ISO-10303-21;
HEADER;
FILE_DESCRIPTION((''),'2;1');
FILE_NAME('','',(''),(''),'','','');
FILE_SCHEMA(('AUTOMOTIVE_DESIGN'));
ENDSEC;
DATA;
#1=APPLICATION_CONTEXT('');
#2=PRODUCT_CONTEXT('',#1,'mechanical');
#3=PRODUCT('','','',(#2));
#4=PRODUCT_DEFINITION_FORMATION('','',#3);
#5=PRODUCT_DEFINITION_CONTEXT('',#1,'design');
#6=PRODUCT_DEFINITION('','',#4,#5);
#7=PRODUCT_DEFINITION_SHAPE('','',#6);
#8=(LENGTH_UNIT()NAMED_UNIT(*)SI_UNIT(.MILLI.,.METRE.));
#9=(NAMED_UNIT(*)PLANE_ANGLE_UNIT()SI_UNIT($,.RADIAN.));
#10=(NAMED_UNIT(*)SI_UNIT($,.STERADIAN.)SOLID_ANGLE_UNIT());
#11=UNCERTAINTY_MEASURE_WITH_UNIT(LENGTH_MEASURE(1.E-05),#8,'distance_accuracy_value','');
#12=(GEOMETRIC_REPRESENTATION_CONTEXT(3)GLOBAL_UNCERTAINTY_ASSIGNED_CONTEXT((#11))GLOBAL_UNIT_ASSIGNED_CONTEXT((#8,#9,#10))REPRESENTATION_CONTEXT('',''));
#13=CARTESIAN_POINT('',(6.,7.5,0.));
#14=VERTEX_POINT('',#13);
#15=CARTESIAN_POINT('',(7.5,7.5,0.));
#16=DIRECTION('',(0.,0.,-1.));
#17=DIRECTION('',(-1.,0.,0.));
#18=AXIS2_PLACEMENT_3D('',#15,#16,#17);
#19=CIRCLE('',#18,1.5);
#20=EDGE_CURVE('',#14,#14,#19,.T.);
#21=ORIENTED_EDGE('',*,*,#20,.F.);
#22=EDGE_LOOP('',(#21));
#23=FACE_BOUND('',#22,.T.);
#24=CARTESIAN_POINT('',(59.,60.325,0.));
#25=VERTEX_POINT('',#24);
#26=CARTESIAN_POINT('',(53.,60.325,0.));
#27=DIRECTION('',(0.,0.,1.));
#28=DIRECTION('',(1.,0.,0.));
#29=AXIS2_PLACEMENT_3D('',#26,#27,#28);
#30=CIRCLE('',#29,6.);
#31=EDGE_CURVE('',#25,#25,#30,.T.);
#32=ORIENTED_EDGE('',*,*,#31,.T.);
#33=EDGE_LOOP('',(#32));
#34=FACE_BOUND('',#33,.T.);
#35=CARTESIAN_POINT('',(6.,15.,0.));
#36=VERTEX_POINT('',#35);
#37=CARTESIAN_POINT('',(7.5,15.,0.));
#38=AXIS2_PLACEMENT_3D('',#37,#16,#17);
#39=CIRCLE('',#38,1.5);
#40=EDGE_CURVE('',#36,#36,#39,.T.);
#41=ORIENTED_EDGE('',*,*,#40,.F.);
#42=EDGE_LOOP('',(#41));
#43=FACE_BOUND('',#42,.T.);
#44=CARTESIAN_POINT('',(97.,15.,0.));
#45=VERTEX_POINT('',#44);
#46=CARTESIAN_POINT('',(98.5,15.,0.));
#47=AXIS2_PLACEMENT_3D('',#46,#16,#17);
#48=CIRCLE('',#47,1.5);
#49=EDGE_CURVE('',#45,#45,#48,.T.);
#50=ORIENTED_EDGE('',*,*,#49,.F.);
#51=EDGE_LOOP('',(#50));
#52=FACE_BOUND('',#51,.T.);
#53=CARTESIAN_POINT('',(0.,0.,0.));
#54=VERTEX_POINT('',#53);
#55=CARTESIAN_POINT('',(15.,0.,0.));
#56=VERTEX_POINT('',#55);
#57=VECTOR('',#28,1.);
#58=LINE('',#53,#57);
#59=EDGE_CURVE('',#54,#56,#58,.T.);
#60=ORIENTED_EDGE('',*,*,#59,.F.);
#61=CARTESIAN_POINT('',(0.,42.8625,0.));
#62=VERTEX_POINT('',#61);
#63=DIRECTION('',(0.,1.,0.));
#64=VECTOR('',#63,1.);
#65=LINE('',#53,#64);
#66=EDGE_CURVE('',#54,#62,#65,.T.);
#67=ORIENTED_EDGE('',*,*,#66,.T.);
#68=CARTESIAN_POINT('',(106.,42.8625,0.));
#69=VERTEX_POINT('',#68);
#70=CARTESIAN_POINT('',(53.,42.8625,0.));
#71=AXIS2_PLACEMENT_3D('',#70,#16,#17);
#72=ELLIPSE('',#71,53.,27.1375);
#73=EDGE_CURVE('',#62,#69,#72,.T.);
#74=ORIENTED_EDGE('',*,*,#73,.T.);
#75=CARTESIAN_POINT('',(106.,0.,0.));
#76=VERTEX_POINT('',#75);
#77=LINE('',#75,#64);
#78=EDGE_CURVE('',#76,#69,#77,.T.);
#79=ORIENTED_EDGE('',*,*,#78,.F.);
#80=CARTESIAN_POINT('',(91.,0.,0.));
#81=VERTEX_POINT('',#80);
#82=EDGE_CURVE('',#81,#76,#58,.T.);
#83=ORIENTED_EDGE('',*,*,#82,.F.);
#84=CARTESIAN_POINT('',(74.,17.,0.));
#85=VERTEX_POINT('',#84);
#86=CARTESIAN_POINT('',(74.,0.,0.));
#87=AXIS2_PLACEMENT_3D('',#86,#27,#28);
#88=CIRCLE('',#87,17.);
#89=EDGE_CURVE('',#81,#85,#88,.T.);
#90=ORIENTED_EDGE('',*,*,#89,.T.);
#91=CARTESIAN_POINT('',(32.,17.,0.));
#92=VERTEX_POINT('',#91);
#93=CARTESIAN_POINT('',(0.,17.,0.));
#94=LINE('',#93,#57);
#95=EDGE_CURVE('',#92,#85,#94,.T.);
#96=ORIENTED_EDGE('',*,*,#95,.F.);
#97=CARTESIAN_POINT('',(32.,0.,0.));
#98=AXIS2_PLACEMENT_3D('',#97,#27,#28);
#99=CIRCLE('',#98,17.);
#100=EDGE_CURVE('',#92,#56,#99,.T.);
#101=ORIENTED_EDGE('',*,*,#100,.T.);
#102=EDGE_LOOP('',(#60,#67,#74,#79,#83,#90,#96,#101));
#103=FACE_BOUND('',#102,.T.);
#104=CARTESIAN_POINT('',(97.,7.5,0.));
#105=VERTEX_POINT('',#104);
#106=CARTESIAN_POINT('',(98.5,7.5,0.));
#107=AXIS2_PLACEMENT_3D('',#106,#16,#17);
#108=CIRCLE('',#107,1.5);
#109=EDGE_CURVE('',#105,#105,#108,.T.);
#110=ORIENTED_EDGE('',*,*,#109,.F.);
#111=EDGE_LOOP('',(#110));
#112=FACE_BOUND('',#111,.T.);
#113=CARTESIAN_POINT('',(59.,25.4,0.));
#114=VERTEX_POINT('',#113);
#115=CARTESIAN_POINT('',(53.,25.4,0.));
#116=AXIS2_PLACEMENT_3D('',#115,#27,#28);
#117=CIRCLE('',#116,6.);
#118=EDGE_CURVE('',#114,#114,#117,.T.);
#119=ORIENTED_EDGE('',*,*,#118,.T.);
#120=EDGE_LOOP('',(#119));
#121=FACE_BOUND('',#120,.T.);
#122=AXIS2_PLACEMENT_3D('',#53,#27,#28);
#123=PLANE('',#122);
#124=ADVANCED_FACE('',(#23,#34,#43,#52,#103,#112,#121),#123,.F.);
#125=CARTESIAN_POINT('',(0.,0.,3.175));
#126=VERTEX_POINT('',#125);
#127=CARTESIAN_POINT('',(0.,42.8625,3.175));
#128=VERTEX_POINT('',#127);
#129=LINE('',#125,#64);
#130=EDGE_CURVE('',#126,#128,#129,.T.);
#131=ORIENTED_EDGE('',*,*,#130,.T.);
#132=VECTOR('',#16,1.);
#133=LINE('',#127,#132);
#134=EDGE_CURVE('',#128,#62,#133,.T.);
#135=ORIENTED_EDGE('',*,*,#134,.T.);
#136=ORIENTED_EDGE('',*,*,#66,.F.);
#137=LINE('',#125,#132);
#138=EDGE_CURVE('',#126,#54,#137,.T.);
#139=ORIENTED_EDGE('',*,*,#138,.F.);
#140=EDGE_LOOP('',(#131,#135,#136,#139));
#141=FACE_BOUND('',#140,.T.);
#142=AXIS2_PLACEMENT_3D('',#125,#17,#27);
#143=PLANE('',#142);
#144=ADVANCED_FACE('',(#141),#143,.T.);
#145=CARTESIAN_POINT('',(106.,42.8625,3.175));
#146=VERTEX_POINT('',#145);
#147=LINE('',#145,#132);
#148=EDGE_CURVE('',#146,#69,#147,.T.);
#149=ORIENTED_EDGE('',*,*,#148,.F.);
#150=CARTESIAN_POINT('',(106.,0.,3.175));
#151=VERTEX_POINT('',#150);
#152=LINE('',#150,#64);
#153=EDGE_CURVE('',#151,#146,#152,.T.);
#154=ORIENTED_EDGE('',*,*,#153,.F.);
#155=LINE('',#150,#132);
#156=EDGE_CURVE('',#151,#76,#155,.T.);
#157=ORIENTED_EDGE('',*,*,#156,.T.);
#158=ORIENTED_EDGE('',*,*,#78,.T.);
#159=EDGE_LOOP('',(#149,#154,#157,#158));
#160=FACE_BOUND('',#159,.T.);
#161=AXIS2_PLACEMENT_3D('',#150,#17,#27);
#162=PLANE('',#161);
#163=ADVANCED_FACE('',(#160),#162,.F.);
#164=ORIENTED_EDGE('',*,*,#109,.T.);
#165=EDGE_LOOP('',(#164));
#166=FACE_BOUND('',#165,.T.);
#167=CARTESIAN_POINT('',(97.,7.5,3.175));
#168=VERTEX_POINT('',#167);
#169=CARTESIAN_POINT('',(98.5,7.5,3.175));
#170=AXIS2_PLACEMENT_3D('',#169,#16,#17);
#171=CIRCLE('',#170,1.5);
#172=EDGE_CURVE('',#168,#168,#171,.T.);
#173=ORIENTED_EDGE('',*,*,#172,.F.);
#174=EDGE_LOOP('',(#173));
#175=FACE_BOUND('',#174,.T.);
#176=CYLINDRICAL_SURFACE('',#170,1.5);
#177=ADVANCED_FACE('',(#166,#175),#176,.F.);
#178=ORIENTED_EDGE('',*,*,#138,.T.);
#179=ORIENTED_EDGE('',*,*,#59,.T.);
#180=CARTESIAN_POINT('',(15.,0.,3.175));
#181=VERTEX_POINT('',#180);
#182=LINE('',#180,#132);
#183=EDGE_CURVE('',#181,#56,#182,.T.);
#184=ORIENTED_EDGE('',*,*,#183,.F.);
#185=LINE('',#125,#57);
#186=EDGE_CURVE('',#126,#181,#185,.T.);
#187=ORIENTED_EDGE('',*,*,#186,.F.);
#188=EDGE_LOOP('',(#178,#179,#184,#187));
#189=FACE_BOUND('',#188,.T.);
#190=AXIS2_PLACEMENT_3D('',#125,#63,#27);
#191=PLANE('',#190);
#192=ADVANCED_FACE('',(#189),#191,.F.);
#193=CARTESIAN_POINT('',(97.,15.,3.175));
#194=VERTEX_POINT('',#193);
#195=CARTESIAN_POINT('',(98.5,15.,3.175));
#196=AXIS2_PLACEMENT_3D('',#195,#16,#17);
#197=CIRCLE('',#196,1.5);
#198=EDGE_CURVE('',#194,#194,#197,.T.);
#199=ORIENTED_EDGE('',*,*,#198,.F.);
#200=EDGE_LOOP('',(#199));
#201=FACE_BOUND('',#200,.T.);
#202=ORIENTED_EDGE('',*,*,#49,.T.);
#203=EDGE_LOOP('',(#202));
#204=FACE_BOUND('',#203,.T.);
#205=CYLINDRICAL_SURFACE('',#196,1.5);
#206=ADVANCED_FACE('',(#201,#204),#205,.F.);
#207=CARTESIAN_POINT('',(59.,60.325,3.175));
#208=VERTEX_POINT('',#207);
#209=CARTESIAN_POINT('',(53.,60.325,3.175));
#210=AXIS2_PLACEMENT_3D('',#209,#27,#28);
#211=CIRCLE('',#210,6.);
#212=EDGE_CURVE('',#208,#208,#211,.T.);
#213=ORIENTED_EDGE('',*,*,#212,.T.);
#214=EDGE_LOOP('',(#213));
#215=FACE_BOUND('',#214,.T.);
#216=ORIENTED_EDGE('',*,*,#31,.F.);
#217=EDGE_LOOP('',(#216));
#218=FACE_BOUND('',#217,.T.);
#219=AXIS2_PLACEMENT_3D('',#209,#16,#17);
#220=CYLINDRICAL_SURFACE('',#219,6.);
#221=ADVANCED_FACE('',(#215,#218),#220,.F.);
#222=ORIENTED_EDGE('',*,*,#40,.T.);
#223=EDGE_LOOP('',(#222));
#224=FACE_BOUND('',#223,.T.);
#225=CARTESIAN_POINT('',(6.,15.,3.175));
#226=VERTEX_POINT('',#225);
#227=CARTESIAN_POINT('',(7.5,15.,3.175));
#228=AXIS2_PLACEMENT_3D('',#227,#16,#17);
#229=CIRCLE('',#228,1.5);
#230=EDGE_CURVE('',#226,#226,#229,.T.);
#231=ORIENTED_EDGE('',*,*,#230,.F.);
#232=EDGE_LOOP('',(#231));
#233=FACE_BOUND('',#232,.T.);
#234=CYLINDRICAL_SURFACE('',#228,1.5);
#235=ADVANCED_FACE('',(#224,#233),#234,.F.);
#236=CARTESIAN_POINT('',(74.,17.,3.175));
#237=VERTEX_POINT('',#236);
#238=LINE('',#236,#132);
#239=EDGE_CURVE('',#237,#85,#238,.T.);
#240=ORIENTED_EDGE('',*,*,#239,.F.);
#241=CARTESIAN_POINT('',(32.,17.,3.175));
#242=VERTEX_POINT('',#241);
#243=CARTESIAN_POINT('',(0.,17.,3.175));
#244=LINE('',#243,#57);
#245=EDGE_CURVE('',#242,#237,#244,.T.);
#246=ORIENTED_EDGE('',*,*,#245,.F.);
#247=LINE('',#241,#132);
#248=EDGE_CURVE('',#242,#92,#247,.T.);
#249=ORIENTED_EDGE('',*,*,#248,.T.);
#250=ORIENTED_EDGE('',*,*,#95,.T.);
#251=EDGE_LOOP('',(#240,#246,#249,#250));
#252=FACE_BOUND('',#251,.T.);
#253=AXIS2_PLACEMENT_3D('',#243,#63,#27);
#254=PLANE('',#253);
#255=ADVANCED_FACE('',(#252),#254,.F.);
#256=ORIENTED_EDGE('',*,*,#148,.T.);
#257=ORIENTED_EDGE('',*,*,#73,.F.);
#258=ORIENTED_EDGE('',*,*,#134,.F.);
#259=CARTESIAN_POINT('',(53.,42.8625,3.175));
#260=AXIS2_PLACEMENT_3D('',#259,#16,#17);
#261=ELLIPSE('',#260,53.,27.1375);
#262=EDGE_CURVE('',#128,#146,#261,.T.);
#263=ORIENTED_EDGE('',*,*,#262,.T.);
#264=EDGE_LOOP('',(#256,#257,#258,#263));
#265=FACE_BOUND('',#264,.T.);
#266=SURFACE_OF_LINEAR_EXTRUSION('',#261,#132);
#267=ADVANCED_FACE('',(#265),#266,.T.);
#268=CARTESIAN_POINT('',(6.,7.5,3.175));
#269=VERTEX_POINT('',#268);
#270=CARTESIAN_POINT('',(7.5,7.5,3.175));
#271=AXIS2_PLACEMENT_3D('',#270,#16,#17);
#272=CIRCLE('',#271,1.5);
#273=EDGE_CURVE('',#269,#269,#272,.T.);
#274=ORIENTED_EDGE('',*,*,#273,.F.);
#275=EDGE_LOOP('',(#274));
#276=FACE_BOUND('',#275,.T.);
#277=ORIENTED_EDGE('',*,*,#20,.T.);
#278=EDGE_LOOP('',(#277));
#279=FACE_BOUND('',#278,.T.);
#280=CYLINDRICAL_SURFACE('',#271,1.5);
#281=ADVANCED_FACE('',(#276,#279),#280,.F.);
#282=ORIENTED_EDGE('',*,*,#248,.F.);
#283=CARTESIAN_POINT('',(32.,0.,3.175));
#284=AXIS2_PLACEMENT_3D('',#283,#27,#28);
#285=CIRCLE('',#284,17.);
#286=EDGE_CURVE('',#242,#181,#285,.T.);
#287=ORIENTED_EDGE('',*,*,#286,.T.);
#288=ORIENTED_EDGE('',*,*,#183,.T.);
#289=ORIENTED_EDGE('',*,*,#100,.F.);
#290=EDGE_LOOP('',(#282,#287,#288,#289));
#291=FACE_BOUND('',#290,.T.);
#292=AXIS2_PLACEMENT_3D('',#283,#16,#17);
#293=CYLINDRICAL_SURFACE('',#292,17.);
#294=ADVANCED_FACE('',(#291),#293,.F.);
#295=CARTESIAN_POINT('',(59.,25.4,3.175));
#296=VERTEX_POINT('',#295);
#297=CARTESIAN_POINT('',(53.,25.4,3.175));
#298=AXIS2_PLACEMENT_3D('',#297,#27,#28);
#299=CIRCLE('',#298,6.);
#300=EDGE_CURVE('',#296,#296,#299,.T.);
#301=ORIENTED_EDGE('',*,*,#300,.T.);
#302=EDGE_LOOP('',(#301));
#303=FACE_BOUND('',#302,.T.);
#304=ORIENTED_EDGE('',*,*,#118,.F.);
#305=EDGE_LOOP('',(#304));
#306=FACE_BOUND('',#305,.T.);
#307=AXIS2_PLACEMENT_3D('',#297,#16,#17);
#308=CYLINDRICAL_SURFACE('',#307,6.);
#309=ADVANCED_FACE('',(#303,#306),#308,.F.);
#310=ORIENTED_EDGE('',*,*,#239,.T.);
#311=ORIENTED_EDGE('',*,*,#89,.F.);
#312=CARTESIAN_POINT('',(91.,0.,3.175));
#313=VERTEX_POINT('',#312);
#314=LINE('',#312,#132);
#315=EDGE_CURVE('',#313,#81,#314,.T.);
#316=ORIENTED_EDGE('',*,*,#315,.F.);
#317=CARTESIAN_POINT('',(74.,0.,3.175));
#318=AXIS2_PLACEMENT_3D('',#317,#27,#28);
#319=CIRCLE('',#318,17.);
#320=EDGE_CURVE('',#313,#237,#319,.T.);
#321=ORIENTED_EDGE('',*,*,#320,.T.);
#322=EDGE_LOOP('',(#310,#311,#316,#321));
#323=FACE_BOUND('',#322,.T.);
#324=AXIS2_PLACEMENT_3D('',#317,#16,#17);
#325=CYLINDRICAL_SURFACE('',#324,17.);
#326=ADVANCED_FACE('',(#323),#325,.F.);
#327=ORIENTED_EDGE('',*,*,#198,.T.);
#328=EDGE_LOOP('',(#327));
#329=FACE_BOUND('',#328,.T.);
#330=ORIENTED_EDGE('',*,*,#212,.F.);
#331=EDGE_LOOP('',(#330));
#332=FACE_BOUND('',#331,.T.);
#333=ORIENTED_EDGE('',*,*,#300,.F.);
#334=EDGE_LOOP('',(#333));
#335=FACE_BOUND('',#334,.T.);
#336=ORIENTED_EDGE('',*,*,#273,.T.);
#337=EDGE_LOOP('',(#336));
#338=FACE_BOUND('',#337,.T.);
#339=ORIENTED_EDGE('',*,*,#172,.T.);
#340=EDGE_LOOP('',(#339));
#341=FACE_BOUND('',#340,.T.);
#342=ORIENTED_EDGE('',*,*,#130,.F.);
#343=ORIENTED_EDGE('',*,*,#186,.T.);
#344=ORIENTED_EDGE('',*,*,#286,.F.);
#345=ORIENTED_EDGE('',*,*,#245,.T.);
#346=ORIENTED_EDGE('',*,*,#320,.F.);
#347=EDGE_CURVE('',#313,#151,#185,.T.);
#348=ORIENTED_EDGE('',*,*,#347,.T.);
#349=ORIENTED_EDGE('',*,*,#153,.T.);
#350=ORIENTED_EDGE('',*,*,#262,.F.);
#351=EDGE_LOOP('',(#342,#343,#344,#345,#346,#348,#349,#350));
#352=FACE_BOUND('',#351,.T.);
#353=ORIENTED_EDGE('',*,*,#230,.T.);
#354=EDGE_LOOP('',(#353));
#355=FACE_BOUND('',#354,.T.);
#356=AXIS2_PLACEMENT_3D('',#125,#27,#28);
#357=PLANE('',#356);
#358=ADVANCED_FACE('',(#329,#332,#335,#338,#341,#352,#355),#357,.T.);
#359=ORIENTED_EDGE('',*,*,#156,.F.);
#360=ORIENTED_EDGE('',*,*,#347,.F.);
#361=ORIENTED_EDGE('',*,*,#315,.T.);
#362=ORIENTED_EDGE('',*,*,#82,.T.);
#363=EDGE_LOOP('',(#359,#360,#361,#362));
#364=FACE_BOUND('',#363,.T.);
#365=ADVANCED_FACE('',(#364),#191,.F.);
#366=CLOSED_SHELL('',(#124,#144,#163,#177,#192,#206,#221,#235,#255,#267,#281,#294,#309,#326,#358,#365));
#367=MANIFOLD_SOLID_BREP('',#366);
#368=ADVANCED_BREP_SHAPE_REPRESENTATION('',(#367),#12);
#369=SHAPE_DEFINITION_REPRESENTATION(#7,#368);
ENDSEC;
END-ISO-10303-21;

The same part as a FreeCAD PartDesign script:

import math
import FreeCAD as App
import Part
import Sketcher

doc = App.newDocument("Part")
body = doc.addObject("PartDesign::Body", "Body")

# Sketch on XY plane
sketch1 = body.newObject("Sketcher::SketchObject", "Sketch")
sketch1.AttachmentSupport = (doc.getObject("XY_Plane"), [""])
sketch1.MapMode = "FlatFace"
sketch1.addGeometry([
    Part.ArcOfCircle(Part.Circle(App.Vector(32, 0, 0), App.Vector(0, 0, 1), 17), math.radians(90), math.radians(180)),  # 0
    Part.LineSegment(App.Vector(32, 17, 0), App.Vector(74, 17, 0)),  # 1
    Part.ArcOfCircle(Part.Circle(App.Vector(74, 0, 0), App.Vector(0, 0, 1), 17), math.radians(0), math.radians(90)),  # 2
    Part.LineSegment(App.Vector(91, 0, 0), App.Vector(106, 0, 0)),  # 3
    Part.LineSegment(App.Vector(106, 0, 0), App.Vector(106, 70, 0)),  # 4
    Part.LineSegment(App.Vector(106, 70, 0), App.Vector(0, 70, 0)),  # 5
    Part.LineSegment(App.Vector(0, 70, 0), App.Vector(0, 0, 0)),  # 6
    Part.LineSegment(App.Vector(0, 0, 0), App.Vector(15, 0, 0)),  # 7
    Part.Circle(App.Vector(53, 25, 0), App.Vector(0, 0, 1), 6),  # 8
    Part.Circle(App.Vector(53, 60, 0), App.Vector(0, 0, 1), 6),  # 9
], False)
sketch1.addConstraint([
    Sketcher.Constraint("Tangent", 0, 1, 1, 1),
    Sketcher.Constraint("Tangent", 1, 2, 2, 2),
    Sketcher.Constraint("Coincident", 2, 1, 3, 1),
    Sketcher.Constraint("Coincident", 3, 2, 4, 1),
    Sketcher.Constraint("Coincident", 4, 2, 5, 1),
    Sketcher.Constraint("Coincident", 5, 2, 6, 1),
    Sketcher.Constraint("Coincident", 6, 2, 7, 1),
    Sketcher.Constraint("Coincident", 7, 2, 0, 2),
    Sketcher.Constraint("Horizontal", 1),
    Sketcher.Constraint("Horizontal", 3),
    Sketcher.Constraint("Vertical", 4),
    Sketcher.Constraint("Horizontal", 5),
    Sketcher.Constraint("Vertical", 6),
    Sketcher.Constraint("Horizontal", 7),
    Sketcher.Constraint("Coincident", 6, 2, -1, 1),
    Sketcher.Constraint("Equal", 0, 2),
    Sketcher.Constraint("Equal", 8, 9),
    Sketcher.Constraint("PointOnObject", 0, 3, -1),
    Sketcher.Constraint("PointOnObject", 2, 1, -1),
    Sketcher.Constraint("Vertical", 8, 3, 9, 3),
    Sketcher.Constraint("Equal", 3, 7),
    Sketcher.Constraint("Diameter", 8, 12.0),
    Sketcher.Constraint("Radius", 0, 17.0),
    Sketcher.Constraint("DistanceX", 1, 1, 1, 2, 42.0),
    Sketcher.Constraint("DistanceX", 3, 1, 3, 2, 15.0),
    Sketcher.Constraint("DistanceY", 4, 1, 4, 2, 70.0),
    Sketcher.Constraint("DistanceX", -1, 1, 8, 3, 53.0),
    Sketcher.Constraint("DistanceY", -1, 1, 8, 3, 25.4),
    Sketcher.Constraint("DistanceY", -1, 1, 9, 3, 60.325),
])
pad1 = body.newObject("PartDesign::Pad", "Pad")
pad1.Profile = sketch1
pad1.Length = 3.175

# Sketch on XY plane
sketch2 = body.newObject("Sketcher::SketchObject", "Sketch001")
sketch2.AttachmentSupport = (doc.getObject("XY_Plane"), [""])
sketch2.MapMode = "FlatFace"
sketch2.addGeometry([
    Part.Circle(App.Vector(7.5, 15, 0), App.Vector(0, 0, 1), 1.5),
    Part.Circle(App.Vector(7.5, 7.5, 0), App.Vector(0, 0, 1), 1.5),
    Part.Circle(App.Vector(98.5, 7.5, 0), App.Vector(0, 0, 1), 1.5),
    Part.Circle(App.Vector(98.5, 15, 0), App.Vector(0, 0, 1), 1.5),
], False)
sketch2.addConstraint([
    Sketcher.Constraint("Equal", 0, 1),
    Sketcher.Constraint("Equal", 1, 2),
    Sketcher.Constraint("Equal", 2, 3),
    Sketcher.Constraint("Horizontal", 1, 3, 2, 3),
    Sketcher.Constraint("Horizontal", 0, 3, 3, 3),
    Sketcher.Constraint("Vertical", 0, 3, 1, 3),
    Sketcher.Constraint("Vertical", 2, 3, 3, 3),
    Sketcher.Constraint("Diameter", 0, 3.0),
    Sketcher.Constraint("DistanceY", -1, 1, 0, 3, 15.0),
    Sketcher.Constraint("DistanceX", 1, 3, 2, 3, 91.0),
    Sketcher.Constraint("DistanceX", -1, 1, 0, 3, 7.5),
    Sketcher.Constraint("DistanceY", -1, 1, 1, 3, 7.5),
])
pocket1 = body.newObject("PartDesign::Pocket", "Pocket")
pocket1.Profile = sketch2
pocket1.Type = "ThroughAll"
pocket1.Reversed = True

# Sketch on XY plane
sketch3 = body.newObject("Sketcher::SketchObject", "Sketch002")
sketch3.AttachmentSupport = (doc.getObject("XY_Plane"), [""])
sketch3.MapMode = "FlatFace"
sketch3.addGeometry([
    Part.BSplineCurve([App.Vector(53, 70, 0), App.Vector(106, 70, 0), App.Vector(106, 42.8625, 0)], [3, 3], [1.570796327, 3.141592654], False, 2, [1, 0.707106781, 1], False),  # 0
    Part.LineSegment(App.Vector(53, 70, 0), App.Vector(106, 70, 0)),  # 1
    Part.LineSegment(App.Vector(106, 70, 0), App.Vector(106, 42.8625, 0)),  # 2
    Part.BSplineCurve([App.Vector(0, 42.8625, 0), App.Vector(0, 70, 0), App.Vector(53, 70, 0)], [3, 3], [0, 1.570796327], False, 2, [1, 0.707106781, 1], False),  # 3
    Part.LineSegment(App.Vector(0, 42.8625, 0), App.Vector(0, 70, 0)),  # 4
    Part.LineSegment(App.Vector(0, 70, 0), App.Vector(53, 70, 0)),  # 5
], False)
sketch3.addConstraint([
    Sketcher.Constraint("Block", 0),
    Sketcher.Constraint("Block", 3),
    Sketcher.Constraint("Coincident", 0, 1, 1, 1),
    Sketcher.Constraint("Coincident", 1, 2, 2, 1),
    Sketcher.Constraint("Coincident", 2, 2, 0, 2),
    Sketcher.Constraint("Coincident", 3, 1, 4, 1),
    Sketcher.Constraint("Coincident", 4, 2, 5, 1),
    Sketcher.Constraint("Coincident", 5, 2, 3, 2),
    Sketcher.Constraint("Horizontal", 1),
    Sketcher.Constraint("Vertical", 2),
    Sketcher.Constraint("Vertical", 4),
    Sketcher.Constraint("Horizontal", 5),
])
pocket2 = body.newObject("PartDesign::Pocket", "Pocket001")
pocket2.Profile = sketch3
pocket2.Type = "ThroughAll"
pocket2.Reversed = True

doc.recompute()
